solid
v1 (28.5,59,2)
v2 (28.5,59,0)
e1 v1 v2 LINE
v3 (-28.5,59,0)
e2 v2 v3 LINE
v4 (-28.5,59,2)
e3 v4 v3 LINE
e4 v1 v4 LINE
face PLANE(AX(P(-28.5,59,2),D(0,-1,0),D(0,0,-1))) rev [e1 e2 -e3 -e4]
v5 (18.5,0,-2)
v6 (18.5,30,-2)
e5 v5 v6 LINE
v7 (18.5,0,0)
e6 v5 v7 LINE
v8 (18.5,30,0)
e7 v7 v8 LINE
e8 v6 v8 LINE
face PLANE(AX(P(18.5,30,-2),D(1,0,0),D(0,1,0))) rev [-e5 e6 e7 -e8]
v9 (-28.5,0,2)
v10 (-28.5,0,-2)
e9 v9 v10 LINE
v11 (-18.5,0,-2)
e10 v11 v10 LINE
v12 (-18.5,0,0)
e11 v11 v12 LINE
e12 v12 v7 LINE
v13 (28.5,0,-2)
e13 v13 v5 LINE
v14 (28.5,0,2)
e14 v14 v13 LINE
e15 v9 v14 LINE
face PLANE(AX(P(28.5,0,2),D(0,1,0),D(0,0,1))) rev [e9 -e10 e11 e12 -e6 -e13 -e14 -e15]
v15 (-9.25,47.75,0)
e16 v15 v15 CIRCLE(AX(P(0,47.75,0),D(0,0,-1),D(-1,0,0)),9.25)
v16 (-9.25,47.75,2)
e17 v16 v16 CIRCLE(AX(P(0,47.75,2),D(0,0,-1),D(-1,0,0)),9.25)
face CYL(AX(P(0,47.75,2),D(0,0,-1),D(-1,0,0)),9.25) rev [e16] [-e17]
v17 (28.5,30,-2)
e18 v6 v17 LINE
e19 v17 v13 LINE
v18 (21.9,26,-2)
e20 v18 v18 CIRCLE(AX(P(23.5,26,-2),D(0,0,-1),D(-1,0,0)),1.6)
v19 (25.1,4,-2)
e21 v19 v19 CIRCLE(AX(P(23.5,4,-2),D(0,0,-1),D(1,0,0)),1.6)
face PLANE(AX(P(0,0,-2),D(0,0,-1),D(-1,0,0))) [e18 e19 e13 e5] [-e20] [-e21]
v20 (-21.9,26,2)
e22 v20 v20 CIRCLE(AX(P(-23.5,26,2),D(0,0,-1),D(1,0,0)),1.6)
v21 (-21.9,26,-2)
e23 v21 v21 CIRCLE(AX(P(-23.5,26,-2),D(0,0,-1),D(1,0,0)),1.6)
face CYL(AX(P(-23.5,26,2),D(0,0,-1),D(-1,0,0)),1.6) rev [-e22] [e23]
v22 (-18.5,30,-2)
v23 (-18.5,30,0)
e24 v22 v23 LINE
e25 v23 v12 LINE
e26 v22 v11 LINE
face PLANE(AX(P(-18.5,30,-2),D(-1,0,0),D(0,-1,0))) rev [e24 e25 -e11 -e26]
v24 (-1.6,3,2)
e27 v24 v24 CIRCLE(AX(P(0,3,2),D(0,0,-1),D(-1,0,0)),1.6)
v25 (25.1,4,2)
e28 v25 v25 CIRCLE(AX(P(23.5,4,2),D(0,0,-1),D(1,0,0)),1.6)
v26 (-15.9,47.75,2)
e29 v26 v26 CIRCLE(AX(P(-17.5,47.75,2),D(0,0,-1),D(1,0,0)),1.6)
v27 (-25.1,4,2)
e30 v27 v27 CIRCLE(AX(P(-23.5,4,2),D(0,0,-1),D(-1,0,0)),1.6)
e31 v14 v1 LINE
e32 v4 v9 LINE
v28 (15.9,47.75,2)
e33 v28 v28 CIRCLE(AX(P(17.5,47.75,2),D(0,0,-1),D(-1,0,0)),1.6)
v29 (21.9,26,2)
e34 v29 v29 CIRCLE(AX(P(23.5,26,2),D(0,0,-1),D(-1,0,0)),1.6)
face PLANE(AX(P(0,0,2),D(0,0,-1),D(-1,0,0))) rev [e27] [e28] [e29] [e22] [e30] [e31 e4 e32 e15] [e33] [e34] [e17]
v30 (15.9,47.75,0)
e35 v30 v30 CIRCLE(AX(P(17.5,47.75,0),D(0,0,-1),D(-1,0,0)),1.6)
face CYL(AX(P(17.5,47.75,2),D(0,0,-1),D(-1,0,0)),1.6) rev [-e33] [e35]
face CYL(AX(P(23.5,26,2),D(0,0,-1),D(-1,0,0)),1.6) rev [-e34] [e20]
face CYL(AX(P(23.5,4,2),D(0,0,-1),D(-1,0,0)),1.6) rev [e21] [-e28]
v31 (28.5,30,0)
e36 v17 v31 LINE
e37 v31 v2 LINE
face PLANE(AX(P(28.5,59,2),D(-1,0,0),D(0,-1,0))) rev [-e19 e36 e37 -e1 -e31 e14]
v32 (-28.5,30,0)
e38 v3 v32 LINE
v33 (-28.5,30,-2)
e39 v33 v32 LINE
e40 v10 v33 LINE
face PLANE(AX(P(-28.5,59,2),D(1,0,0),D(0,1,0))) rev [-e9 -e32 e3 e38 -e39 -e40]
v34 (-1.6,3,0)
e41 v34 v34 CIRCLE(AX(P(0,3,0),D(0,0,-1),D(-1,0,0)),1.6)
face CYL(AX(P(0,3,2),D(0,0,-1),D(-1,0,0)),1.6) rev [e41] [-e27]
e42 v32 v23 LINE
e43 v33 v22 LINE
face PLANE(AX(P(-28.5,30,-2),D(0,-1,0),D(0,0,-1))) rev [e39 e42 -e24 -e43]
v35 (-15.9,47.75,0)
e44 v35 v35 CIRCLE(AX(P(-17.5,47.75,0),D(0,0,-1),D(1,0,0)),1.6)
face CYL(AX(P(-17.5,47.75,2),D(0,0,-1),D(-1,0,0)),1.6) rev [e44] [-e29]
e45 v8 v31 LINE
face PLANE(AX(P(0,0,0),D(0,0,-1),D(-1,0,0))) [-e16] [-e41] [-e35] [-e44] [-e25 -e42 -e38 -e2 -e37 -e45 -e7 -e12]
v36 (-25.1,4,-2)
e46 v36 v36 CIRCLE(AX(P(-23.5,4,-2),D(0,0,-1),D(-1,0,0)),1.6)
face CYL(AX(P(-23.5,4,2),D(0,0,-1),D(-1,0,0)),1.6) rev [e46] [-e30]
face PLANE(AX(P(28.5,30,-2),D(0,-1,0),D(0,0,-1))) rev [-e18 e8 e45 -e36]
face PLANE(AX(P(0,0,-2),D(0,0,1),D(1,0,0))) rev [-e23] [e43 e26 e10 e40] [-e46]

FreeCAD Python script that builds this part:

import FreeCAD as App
import Part
import Sketcher
from FreeCAD import Vector
Q = App.Units.Quantity

doc = App.newDocument("Part")
body = doc.addObject("PartDesign::Body", "Body")

# Sketch on XY plane
sketch1 = body.newObject("Sketcher::SketchObject", "Sketch")
sketch1.AttachmentSupport = (doc.getObject("XY_Plane"), [""])
sketch1.MapMode = "FlatFace"
sketch1.addGeometry([
    Part.LineSegment(Vector(-28, 59, 0), Vector(-28, 0, 0)),
    Part.LineSegment(Vector(-28, 0, 0), Vector(28, 0, 0)),
    Part.LineSegment(Vector(28, 0, 0), Vector(28, 59, 0)),
    Part.LineSegment(Vector(28, 59, 0), Vector(-28, 59, 0)),
], False)
sketch1.addConstraint([
    Sketcher.Constraint("Coincident", 0, 2, 1, 1),
    Sketcher.Constraint("Coincident", 1, 2, 2, 1),
    Sketcher.Constraint("Coincident", 2, 2, 3, 1),
    Sketcher.Constraint("Coincident", 3, 2, 0, 1),
    Sketcher.Constraint("Vertical", 0),
    Sketcher.Constraint("Horizontal", 1),
    Sketcher.Constraint("Vertical", 2),
    Sketcher.Constraint("Horizontal", 3),
    Sketcher.Constraint("Symmetric", 0, 2, 1, 2, -1, 1),
    Sketcher.Constraint("DistanceX", 1, 1, 1, 2, Q("57 mm")),
    Sketcher.Constraint("DistanceY", 0, 2, 0, 1, Q("59 mm")),
])
pad1 = body.newObject("PartDesign::Pad", "Pad")
pad1.Profile = sketch1
pad1.Length = 2

# Sketch on XY plane
sketch2 = body.newObject("Sketcher::SketchObject", "Sketch001")
sketch2.AttachmentSupport = (doc.getObject("XY_Plane"), [""])
sketch2.MapMode = "FlatFace"
sketch2.addGeometry([
    Part.Circle(Vector(0, 47.8, 0), Vector(0, 0, 1), 9.2),
    Part.Circle(Vector(17.5, 47.8, 0), Vector(0, 0, 1), 1.6),
    Part.Circle(Vector(-17.5, 47.8, 0), Vector(0, 0, 1), 1.6),
], False)
sketch2.addConstraint([
    Sketcher.Constraint("Equal", 1, 2),
    Sketcher.Constraint("Symmetric", 1, 3, 2, 3, -2),
    Sketcher.Constraint("PointOnObject", 0, 3, -2),
    Sketcher.Constraint("Horizontal", 0, 3, 1, 3),
    Sketcher.Constraint("Diameter", 0, Q("18.5 mm")),
    Sketcher.Constraint("Diameter", 1, Q("3.2 mm")),
    Sketcher.Constraint("DistanceX", 2, 3, 1, 3, Q("35 mm")),
    Sketcher.Constraint("DistanceY", -1, 1, 0, 3, Q("47.75 mm")),
])
pocket1 = body.newObject("PartDesign::Pocket", "Pocket")
pocket1.Profile = sketch2
pocket1.Type = "ThroughAll"
pocket1.Reversed = True

# Sketch on XY plane
sketch3 = body.newObject("Sketcher::SketchObject", "Sketch002")
sketch3.AttachmentSupport = (doc.getObject("XY_Plane"), [""])
sketch3.MapMode = "FlatFace"
sketch3.addGeometry([
    Part.LineSegment(Vector(28, 30, 0), Vector(28, 0, 0)),  # 0
    Part.LineSegment(Vector(28, 0, 0), Vector(18, 0, 0)),  # 1
    Part.LineSegment(Vector(18, 0, 0), Vector(18, 30, 0)),  # 2
    Part.LineSegment(Vector(18, 30, 0), Vector(28, 30, 0)),  # 3
    Part.LineSegment(Vector(-18, 30, 0), Vector(-18, 0, 0)),  # 4
    Part.LineSegment(Vector(-18, 0, 0), Vector(-28, 0, 0)),  # 5
    Part.LineSegment(Vector(-28, 0, 0), Vector(-28, 30, 0)),  # 6
    Part.LineSegment(Vector(-28, 30, 0), Vector(-18, 30, 0)),  # 7
], False)
sketch3.addConstraint([
    Sketcher.Constraint("Coincident", 0, 2, 1, 1),
    Sketcher.Constraint("Coincident", 1, 2, 2, 1),
    Sketcher.Constraint("Coincident", 2, 2, 3, 1),
    Sketcher.Constraint("Coincident", 3, 2, 0, 1),
    Sketcher.Constraint("Coincident", 4, 2, 5, 1),
    Sketcher.Constraint("Coincident", 5, 2, 6, 1),
    Sketcher.Constraint("Coincident", 6, 2, 7, 1),
    Sketcher.Constraint("Coincident", 7, 2, 4, 1),
    Sketcher.Constraint("Vertical", 0),
    Sketcher.Constraint("Horizontal", 1),
    Sketcher.Constraint("Vertical", 2),
    Sketcher.Constraint("Horizontal", 3),
    Sketcher.Constraint("Vertical", 4),
    Sketcher.Constraint("Horizontal", 5),
    Sketcher.Constraint("Vertical", 6),
    Sketcher.Constraint("Horizontal", 7),
    Sketcher.Constraint("Symmetric", 1, 2, 4, 2, -1, 1),
    Sketcher.Constraint("Symmetric", 0, 2, 5, 2, -2),
    Sketcher.Constraint("Horizontal", 3, 2, 6, 2),
    Sketcher.Constraint("DistanceX", 1, 2, 1, 1, Q("10 mm")),
    Sketcher.Constraint("DistanceY", 0, 2, 0, 1, Q("30 mm")),
    Sketcher.Constraint("DistanceX", 4, 2, 1, 2, Q("37 mm")),
])
pad2 = body.newObject("PartDesign::Pad", "Pad001")
pad2.Profile = sketch3
pad2.Length = 2
pad2.Reversed = True

# Sketch on XY plane
sketch4 = body.newObject("Sketcher::SketchObject", "Sketch003")
sketch4.AttachmentSupport = (doc.getObject("XY_Plane"), [""])
sketch4.MapMode = "FlatFace"
sketch4.AttachmentOffset = App.Placement(Vector(0, 0, -2), App.Rotation())
sketch4.addGeometry([
    Part.Circle(Vector(23.5, 26, 0), Vector(0, 0, 1), 1.6),
    Part.Circle(Vector(-23.5, 26, 0), Vector(0, 0, 1), 1.6),
    Part.Circle(Vector(-23.5, 4, 0), Vector(0, 0, 1), 1.6),
    Part.Circle(Vector(23.5, 4, 0), Vector(0, 0, 1), 1.6),
], False)
sketch4.addConstraint([
    Sketcher.Constraint("Equal", 0, 1),
    Sketcher.Constraint("Equal", 1, 2),
    Sketcher.Constraint("Equal", 2, 3),
    Sketcher.Constraint("Symmetric", 0, 3, 1, 3, -2),
    Sketcher.Constraint("Symmetric", 2, 3, 3, 3, -2),
    Sketcher.Constraint("Vertical", 1, 3, 2, 3),
    Sketcher.Constraint("Diameter", 0, Q("3.2 mm")),
    Sketcher.Constraint("DistanceY", -1, 1, 0, 3, Q("26 mm")),
    Sketcher.Constraint("DistanceY", -1, 1, 2, 3, Q("4 mm")),
    Sketcher.Constraint("DistanceX", 1, 3, 0, 3, Q("47 mm")),
])
pocket2 = body.newObject("PartDesign::Pocket", "Pocket001")
pocket2.Profile = sketch4
pocket2.Type = "ThroughAll"
pocket2.Reversed = True

# Sketch on XY plane
sketch5 = body.newObject("Sketcher::SketchObject", "Sketch004")
sketch5.AttachmentSupport = (doc.getObject("XY_Plane"), [""])
sketch5.MapMode = "FlatFace"
sketch5.addGeometry(Part.Circle(Vector(0, 3, 0), Vector(0, 0, 1), 1.6), False)
sketch5.addConstraint([
    Sketcher.Constraint("PointOnObject", 0, 3, -2),
    Sketcher.Constraint("Diameter", 0, Q("3.2 mm")),
    Sketcher.Constraint("DistanceY", -1, 1, 0, 3, Q("3 mm")),
])
pocket3 = body.newObject("PartDesign::Pocket", "Pocket002")
pocket3.Profile = sketch5
pocket3.Type = "ThroughAll"
pocket3.Reversed = True

doc.recompute()
